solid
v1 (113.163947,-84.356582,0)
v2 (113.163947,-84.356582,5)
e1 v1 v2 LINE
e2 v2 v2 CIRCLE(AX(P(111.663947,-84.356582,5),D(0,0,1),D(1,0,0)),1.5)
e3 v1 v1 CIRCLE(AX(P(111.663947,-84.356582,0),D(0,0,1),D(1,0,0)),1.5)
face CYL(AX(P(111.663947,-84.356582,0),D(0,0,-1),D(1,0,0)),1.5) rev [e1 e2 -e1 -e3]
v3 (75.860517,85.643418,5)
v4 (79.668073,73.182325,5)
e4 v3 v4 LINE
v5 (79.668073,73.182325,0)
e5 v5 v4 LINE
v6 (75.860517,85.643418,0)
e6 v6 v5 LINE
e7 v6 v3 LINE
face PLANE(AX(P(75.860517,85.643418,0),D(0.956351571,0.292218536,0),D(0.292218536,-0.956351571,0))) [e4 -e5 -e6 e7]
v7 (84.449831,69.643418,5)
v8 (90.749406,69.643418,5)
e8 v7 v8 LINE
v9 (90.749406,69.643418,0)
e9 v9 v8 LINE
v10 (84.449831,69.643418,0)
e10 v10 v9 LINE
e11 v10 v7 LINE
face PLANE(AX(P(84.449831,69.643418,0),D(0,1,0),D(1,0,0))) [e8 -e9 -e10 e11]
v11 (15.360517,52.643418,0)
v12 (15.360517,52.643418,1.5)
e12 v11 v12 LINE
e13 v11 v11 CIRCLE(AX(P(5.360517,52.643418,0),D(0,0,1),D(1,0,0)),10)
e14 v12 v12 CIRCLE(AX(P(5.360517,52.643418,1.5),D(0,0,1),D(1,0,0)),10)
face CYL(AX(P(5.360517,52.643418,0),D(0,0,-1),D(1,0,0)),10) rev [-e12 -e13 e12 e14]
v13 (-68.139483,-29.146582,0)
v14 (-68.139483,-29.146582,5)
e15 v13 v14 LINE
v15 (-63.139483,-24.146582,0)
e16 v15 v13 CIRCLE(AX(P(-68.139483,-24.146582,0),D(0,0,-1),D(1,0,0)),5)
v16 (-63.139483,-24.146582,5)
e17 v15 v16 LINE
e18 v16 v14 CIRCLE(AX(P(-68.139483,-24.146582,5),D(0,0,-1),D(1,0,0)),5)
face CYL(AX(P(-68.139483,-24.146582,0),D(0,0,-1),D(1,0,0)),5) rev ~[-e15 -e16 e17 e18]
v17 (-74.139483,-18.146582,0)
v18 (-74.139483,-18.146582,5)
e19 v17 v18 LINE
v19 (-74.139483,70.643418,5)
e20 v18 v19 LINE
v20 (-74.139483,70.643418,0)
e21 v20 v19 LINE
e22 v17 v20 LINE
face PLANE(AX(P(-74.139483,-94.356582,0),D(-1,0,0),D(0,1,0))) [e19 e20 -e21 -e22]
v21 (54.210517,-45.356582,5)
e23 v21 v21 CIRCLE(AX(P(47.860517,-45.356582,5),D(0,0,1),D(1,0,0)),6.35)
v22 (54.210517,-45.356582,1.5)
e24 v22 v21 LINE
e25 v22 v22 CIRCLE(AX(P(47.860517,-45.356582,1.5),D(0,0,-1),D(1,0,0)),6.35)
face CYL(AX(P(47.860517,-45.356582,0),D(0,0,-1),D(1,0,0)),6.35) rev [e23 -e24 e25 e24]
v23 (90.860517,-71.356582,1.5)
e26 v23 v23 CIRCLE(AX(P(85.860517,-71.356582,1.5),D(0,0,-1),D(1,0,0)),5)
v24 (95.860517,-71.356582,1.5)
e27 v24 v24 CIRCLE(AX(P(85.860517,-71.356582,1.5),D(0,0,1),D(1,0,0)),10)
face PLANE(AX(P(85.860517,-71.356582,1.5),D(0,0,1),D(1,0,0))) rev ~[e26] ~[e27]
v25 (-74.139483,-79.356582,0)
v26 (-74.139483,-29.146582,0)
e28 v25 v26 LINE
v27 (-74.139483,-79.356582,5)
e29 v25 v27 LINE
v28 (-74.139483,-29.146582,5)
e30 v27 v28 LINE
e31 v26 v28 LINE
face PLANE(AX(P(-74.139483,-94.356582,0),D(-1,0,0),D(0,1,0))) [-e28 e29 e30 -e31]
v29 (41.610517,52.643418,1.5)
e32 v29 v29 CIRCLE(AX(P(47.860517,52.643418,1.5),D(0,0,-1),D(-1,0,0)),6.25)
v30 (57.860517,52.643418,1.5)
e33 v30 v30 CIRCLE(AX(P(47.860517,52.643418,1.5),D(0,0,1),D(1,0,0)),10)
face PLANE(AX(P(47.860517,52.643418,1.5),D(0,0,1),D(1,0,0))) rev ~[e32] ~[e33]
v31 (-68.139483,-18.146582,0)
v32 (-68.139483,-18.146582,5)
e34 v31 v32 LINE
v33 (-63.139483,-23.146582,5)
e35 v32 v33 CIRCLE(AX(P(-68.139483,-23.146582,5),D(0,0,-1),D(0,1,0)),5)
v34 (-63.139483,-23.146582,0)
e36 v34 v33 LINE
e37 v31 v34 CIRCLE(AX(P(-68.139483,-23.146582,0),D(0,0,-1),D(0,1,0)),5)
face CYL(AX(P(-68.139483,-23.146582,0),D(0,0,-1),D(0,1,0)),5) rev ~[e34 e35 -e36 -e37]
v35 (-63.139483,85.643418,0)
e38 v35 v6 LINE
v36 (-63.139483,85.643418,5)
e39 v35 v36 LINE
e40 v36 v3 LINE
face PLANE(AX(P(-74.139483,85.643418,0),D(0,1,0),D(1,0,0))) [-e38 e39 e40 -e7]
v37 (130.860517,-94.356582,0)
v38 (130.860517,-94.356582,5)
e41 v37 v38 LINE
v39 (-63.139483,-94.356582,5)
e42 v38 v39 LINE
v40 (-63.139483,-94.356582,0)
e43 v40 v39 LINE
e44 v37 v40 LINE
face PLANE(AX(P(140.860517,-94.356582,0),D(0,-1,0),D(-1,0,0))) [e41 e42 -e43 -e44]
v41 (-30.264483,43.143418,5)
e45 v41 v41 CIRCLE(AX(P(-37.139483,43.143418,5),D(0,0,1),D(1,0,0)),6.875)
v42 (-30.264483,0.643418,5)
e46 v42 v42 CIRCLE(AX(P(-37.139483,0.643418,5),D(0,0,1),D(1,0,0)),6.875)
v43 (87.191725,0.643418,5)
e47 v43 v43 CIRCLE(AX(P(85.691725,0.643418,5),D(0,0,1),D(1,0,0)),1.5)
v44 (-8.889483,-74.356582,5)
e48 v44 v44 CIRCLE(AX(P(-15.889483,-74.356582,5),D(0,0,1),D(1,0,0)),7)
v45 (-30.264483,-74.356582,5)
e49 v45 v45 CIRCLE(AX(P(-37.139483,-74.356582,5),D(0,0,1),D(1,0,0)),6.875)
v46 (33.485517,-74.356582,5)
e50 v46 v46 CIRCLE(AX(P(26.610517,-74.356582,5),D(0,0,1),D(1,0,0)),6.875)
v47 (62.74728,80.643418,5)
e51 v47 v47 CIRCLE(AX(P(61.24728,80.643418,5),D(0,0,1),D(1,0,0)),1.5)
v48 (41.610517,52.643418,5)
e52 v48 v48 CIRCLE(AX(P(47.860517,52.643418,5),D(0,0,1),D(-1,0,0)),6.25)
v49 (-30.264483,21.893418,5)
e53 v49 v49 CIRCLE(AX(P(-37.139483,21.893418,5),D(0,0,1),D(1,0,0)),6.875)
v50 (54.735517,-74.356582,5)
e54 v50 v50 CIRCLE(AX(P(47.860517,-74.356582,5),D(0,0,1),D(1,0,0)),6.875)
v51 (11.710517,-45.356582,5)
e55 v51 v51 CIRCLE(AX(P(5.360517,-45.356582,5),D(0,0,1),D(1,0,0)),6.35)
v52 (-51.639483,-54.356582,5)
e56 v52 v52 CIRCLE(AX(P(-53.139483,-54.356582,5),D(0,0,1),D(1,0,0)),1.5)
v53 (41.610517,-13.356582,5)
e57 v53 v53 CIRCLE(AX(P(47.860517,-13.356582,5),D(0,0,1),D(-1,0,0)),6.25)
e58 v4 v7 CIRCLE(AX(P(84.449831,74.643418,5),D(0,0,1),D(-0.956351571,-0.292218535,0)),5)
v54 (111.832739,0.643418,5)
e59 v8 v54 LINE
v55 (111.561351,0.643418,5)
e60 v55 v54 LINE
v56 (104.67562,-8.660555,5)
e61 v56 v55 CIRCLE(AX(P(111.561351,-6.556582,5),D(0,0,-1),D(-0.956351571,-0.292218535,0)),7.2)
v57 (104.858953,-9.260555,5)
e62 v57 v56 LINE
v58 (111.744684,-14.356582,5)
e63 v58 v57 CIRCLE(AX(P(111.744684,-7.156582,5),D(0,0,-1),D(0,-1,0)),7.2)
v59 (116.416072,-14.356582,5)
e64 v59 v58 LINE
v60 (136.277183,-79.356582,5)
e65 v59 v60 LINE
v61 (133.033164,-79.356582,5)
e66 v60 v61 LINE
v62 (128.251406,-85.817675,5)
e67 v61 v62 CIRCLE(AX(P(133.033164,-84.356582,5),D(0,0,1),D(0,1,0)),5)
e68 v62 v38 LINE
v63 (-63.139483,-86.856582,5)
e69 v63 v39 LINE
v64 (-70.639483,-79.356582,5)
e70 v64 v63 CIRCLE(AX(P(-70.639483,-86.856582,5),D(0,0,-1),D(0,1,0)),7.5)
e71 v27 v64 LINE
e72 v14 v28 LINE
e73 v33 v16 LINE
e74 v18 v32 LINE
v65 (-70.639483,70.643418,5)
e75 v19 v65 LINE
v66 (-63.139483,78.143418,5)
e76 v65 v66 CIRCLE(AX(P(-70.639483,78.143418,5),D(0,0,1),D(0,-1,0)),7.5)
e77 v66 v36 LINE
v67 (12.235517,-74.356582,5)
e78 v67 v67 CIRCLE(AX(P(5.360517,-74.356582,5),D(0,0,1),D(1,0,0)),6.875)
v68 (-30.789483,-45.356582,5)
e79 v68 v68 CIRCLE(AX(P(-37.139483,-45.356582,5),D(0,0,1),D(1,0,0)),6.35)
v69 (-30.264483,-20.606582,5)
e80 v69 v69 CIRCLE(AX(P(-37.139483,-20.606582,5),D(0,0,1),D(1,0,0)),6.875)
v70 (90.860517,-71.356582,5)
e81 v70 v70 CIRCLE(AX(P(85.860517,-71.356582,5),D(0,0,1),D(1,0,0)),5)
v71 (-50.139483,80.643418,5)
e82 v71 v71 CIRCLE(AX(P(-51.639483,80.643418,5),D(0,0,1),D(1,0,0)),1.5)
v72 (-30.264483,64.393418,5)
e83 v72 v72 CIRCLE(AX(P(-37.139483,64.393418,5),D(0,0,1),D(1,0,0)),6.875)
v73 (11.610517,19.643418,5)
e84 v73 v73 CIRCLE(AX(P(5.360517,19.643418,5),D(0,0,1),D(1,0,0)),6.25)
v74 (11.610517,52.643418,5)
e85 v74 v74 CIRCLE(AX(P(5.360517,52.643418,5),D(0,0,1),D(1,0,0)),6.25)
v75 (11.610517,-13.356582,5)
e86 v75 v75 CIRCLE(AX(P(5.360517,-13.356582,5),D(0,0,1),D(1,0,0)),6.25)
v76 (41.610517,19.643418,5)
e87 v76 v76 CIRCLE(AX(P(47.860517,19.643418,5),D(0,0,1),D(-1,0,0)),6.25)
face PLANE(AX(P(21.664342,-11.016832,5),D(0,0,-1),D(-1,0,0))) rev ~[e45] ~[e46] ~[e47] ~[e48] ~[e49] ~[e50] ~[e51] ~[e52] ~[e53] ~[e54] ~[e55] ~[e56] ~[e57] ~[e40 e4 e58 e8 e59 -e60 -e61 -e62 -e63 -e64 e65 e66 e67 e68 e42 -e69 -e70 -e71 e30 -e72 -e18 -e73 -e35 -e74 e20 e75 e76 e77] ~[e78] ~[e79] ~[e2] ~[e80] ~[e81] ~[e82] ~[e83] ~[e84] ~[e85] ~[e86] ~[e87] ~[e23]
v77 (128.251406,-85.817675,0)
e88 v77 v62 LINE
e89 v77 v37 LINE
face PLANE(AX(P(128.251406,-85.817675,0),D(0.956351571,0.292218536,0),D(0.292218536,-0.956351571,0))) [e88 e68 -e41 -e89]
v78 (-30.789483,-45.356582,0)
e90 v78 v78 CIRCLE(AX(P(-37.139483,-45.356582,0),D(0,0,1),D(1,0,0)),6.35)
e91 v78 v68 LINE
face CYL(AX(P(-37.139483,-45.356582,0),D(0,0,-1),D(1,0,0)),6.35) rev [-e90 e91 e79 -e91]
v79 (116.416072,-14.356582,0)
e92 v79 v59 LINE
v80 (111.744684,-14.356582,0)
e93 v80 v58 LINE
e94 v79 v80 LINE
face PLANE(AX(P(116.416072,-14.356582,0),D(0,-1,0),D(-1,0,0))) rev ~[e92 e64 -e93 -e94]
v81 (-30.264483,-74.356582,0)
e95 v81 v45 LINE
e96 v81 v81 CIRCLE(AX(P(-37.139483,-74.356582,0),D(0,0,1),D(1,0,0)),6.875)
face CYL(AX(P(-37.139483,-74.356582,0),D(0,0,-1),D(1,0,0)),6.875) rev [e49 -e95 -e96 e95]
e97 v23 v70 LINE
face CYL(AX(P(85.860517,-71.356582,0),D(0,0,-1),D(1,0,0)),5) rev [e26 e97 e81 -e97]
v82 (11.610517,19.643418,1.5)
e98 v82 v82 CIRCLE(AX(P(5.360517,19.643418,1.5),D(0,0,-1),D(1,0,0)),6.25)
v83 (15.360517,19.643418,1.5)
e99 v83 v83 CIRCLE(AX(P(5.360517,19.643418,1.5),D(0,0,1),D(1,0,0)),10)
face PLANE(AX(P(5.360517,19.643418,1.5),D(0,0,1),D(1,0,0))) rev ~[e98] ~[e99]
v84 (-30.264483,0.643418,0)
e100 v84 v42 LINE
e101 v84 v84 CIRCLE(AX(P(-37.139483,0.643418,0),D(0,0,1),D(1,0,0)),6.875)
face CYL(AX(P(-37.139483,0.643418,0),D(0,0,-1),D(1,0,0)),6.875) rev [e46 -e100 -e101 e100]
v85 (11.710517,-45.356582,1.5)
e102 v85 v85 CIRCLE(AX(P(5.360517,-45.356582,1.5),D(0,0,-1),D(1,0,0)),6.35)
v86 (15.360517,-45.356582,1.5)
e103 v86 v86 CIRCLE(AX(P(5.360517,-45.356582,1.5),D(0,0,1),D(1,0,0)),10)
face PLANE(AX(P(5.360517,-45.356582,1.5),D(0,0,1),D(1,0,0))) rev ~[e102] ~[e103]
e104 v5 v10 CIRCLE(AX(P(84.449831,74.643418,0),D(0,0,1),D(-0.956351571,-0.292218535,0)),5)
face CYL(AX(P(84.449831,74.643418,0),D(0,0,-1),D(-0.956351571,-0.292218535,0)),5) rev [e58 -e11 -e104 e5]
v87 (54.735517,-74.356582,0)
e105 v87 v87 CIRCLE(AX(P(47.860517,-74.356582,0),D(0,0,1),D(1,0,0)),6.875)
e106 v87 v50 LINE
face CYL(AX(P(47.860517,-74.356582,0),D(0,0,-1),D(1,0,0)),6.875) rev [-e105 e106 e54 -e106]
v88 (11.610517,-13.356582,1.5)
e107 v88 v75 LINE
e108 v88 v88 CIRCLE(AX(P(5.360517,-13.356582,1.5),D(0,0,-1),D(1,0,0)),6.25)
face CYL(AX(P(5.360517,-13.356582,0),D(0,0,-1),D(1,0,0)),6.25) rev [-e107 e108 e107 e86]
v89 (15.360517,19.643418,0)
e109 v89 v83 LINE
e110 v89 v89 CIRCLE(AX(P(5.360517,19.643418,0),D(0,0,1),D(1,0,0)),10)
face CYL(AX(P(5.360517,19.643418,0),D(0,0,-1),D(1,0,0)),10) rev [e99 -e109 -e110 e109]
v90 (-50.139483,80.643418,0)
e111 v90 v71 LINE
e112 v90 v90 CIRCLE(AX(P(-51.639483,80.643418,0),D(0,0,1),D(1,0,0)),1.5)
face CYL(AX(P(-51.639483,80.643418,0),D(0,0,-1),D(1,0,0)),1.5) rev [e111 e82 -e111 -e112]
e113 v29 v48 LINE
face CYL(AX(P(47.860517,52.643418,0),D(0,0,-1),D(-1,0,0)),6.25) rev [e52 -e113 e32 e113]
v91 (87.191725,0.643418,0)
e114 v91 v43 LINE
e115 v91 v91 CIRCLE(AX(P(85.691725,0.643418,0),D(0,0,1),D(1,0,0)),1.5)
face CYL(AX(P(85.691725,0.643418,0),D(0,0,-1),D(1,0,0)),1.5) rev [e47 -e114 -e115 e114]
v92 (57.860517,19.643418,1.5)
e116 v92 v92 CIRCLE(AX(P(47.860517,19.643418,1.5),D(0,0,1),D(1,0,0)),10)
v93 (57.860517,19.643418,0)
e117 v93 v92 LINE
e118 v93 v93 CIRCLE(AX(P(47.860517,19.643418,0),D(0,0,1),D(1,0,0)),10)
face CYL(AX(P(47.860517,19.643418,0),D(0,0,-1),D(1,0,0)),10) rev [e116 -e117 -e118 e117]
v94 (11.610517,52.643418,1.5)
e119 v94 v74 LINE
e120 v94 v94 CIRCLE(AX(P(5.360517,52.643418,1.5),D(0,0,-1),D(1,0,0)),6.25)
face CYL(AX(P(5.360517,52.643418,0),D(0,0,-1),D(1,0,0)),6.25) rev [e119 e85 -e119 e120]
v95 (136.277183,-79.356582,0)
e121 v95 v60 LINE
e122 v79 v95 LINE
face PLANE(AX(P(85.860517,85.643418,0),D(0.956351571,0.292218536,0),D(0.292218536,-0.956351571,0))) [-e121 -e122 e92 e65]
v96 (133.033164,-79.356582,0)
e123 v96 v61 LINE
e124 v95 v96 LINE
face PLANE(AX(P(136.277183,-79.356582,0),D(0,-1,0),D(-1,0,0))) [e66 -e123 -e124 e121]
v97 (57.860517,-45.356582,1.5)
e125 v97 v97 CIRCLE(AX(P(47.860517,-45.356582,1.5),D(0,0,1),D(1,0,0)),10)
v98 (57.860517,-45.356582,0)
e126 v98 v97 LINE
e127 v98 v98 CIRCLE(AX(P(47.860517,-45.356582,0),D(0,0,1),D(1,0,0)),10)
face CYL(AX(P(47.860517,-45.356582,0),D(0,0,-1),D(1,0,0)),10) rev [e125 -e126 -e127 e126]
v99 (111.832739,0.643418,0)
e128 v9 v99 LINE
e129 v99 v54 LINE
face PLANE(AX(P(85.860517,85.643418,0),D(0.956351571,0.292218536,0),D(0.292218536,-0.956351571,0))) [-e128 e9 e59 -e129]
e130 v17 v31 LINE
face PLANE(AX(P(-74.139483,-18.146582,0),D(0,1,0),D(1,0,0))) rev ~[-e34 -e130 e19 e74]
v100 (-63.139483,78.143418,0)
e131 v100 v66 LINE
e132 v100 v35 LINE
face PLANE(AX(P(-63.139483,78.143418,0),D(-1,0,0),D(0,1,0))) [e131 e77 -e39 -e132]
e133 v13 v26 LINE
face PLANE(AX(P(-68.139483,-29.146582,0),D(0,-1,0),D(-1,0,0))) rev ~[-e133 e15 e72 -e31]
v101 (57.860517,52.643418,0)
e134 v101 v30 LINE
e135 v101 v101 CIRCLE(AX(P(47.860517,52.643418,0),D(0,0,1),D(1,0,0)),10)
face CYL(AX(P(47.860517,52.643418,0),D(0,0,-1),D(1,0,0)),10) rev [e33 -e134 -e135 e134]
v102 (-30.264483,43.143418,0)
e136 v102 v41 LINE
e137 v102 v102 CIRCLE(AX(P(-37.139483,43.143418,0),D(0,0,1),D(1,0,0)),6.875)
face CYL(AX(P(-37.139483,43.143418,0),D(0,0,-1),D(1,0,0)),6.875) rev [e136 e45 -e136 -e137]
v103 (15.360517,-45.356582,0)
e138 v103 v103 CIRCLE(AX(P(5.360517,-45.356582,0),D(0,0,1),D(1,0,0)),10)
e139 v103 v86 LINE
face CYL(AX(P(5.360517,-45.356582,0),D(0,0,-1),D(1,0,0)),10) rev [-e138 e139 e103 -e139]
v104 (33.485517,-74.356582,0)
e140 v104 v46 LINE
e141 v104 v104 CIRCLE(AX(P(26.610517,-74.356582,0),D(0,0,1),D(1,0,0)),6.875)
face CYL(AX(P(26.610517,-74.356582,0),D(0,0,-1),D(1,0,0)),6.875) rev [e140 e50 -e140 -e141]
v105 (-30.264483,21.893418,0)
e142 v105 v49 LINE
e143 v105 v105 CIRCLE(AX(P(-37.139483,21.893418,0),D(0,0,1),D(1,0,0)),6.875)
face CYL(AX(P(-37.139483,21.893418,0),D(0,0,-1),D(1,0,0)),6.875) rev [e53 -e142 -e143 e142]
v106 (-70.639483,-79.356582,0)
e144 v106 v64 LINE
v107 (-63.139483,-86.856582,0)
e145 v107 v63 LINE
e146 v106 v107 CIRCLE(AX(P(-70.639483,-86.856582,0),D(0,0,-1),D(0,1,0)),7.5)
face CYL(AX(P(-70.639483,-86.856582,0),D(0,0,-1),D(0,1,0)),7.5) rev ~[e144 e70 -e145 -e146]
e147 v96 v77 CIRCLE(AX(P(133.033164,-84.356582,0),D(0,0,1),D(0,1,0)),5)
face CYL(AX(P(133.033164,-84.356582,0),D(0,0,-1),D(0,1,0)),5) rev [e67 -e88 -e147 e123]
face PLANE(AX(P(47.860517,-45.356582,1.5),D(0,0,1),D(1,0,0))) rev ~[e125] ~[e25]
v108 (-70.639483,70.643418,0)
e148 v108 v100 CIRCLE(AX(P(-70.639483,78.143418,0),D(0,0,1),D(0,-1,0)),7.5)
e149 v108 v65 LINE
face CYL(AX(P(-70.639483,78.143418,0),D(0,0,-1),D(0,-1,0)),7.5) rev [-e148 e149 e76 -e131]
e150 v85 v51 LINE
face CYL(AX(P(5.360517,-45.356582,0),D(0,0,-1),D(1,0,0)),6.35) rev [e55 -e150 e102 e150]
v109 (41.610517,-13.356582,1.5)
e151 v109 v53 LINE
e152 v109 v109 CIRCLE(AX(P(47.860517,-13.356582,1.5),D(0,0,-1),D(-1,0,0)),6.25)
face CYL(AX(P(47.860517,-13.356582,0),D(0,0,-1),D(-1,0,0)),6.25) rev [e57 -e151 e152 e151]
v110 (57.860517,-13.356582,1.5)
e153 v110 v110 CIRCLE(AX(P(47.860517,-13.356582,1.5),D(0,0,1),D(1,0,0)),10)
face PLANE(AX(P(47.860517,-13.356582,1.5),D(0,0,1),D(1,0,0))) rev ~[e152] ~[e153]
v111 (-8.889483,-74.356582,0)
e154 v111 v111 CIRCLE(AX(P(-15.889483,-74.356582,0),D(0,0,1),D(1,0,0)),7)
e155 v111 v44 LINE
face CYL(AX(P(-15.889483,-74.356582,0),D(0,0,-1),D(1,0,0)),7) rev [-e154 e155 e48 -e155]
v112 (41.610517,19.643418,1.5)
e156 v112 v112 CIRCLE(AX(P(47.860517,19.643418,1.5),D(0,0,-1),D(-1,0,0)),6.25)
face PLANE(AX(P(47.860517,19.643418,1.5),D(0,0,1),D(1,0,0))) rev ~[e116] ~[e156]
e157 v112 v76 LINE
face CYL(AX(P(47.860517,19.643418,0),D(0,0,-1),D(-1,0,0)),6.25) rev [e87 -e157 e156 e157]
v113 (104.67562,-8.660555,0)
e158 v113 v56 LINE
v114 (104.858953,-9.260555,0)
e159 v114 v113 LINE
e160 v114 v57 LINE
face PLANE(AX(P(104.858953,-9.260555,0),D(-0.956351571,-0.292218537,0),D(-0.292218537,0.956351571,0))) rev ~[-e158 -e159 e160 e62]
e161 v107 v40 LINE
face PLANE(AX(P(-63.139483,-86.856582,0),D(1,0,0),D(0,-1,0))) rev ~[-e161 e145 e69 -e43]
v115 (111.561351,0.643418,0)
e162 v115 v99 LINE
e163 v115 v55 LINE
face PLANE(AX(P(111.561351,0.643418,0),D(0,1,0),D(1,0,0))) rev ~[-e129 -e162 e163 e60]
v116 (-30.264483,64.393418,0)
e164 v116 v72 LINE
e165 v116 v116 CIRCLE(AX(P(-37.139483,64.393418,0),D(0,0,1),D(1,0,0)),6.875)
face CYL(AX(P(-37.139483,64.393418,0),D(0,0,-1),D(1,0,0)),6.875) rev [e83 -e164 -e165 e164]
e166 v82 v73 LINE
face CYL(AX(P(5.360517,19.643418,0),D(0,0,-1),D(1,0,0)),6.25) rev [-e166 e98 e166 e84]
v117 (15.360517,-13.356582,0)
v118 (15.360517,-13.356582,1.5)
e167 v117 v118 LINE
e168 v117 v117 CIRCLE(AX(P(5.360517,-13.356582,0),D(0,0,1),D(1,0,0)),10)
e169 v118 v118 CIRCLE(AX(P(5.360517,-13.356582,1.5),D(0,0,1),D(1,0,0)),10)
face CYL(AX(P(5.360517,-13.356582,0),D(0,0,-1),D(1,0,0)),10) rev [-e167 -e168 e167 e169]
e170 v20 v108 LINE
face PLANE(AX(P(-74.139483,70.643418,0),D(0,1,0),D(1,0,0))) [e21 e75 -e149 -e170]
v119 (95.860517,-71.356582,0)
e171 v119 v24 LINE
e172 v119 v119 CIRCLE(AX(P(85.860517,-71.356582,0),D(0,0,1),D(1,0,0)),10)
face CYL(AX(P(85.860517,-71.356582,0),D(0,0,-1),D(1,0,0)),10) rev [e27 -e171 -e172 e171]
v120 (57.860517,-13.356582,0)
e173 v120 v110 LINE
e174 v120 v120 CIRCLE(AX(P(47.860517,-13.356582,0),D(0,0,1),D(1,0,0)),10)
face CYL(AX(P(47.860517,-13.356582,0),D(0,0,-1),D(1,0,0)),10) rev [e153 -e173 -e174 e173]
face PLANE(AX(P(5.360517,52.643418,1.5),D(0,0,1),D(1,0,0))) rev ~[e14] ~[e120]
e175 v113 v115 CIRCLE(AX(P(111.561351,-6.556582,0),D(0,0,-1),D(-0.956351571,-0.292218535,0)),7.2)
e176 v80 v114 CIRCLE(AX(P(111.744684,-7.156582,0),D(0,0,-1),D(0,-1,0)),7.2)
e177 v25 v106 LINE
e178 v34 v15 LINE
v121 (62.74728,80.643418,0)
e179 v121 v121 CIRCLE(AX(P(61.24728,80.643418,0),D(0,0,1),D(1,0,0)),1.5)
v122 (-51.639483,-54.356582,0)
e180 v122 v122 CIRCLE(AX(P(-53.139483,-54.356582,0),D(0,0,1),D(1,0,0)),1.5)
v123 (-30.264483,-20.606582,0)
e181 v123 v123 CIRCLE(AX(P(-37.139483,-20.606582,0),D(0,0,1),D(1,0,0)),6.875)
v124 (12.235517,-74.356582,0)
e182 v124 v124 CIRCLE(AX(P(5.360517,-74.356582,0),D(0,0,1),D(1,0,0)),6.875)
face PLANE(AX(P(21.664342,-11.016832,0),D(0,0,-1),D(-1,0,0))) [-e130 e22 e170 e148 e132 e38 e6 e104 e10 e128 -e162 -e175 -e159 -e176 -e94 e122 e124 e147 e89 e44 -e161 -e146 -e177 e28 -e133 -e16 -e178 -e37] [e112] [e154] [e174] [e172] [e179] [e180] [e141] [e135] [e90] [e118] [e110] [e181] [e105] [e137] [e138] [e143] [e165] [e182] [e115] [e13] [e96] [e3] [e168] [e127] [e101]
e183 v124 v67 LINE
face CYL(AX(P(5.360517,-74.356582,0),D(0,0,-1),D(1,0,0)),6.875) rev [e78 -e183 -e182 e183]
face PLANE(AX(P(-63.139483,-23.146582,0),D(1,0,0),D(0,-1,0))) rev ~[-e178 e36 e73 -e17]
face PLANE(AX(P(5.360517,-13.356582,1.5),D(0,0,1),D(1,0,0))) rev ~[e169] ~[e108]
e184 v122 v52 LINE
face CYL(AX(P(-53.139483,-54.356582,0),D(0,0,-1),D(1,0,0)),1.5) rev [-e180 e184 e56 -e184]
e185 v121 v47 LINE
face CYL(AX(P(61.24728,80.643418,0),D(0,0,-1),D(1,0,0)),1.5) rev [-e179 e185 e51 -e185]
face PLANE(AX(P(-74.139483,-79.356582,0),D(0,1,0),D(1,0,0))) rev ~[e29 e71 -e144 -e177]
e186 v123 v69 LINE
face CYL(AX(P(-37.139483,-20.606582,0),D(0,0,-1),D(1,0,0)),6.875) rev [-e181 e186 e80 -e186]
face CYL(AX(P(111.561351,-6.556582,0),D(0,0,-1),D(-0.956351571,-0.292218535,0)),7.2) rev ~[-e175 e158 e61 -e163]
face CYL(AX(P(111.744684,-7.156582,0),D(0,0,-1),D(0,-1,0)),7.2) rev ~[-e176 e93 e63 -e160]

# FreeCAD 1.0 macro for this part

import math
import FreeCAD as App
import Part
import Sketcher

V = App.Vector

doc = App.newDocument("Part")
body = doc.addObject("PartDesign::Body", "Body")

# Sketch on XY plane
sketch1 = body.newObject("Sketcher::SketchObject", "Sketch")
sketch1.AttachmentSupport = (doc.getObject("XY_Plane"), [""])
sketch1.MapMode = "FlatFace"
sketch1.addGeometry(Part.LineSegment(V(85.9, 85.6, 0), V(-74.1, 85.6, 0)), False)
sketch1.addGeometry(Part.LineSegment(V(-74.1, 85.6, 0), V(-74.1, -94.4, 0)), False)
sketch1.addGeometry(Part.LineSegment(V(-74.1, -94.4, 0), V(140.9, -94.4, 0)), False)
sketch1.addGeometry(Part.LineSegment(V(140.9, -94.4, 0), V(85.9, 85.6, 0)), False)
sketch1.addGeometry(Part.Circle(V(111.7, -84.4, 0), V(0, 0, 1), 1.5), False)
sketch1.addGeometry(Part.Circle(V(85.9, -71.4, 0), V(0, 0, 1), 5), False)
sketch1.addGeometry(Part.Circle(V(47.9, -74.4, 0), V(0, 0, 1), 6.9), False)
sketch1.addGeometry(Part.Circle(V(47.9, -45.4, 0), V(0, 0, 1), 6.3), False)
sketch1.addGeometry(Part.Circle(V(47.9, -13.4, 0), V(0, 0, 1), 6.2), False)
sketch1.addGeometry(Part.Circle(V(26.6, -74.4, 0), V(0, 0, 1), 6.9), False)
sketch1.addGeometry(Part.Circle(V(5.4, -74.4, 0), V(0, 0, 1), 6.9), False)
sketch1.addGeometry(Part.Circle(V(5.4, -45.4, 0), V(0, 0, 1), 6.3), False)
sketch1.addGeometry(Part.Circle(V(-15.9, -74.4, 0), V(0, 0, 1), 7), False)
sketch1.addGeometry(Part.Circle(V(-37.1, -74.4, 0), V(0, 0, 1), 6.9), False)
sketch1.addGeometry(Part.Circle(V(-37.1, -45.4, 0), V(0, 0, 1), 6.3), False)
sketch1.addGeometry(Part.Circle(V(-53.1, -54.4, 0), V(0, 0, 1), 1.5), False)
sketch1.addGeometry(Part.Circle(V(5.4, -13.4, 0), V(0, 0, 1), 6.2), False)
sketch1.addGeometry(Part.Circle(V(-37.1, -20.6, 0), V(0, 0, 1), 6.9), False)
sketch1.addGeometry(Part.Circle(V(85.7, 0.6, 0), V(0, 0, 1), 1.5), False)
sketch1.addGeometry(Part.Circle(V(47.9, 19.6, 0), V(0, 0, 1), 6.2), False)
sketch1.addGeometry(Part.Circle(V(47.9, 52.6, 0), V(0, 0, 1), 6.2), False)
sketch1.addGeometry(Part.Circle(V(61.2, 80.6, 0), V(0, 0, 1), 1.5), False)
sketch1.addGeometry(Part.Circle(V(5.4, 19.6, 0), V(0, 0, 1), 6.2), False)
sketch1.addGeometry(Part.Circle(V(-37.1, 0.6, 0), V(0, 0, 1), 6.9), False)
sketch1.addGeometry(Part.Circle(V(-37.1, 21.9, 0), V(0, 0, 1), 6.9), False)
sketch1.addGeometry(Part.Circle(V(5.4, 52.6, 0), V(0, 0, 1), 6.2), False)
sketch1.addGeometry(Part.Circle(V(-37.1, 43.1, 0), V(0, 0, 1), 6.9), False)
sketch1.addGeometry(Part.Circle(V(-37.1, 64.4, 0), V(0, 0, 1), 6.9), False)
sketch1.addGeometry(Part.Circle(V(-51.6, 80.6, 0), V(0, 0, 1), 1.5), False)
sketch1.addConstraint(Sketcher.Constraint("Coincident", 0, 2, 1, 1))
sketch1.addConstraint(Sketcher.Constraint("Coincident", 1, 2, 2, 1))
sketch1.addConstraint(Sketcher.Constraint("Coincident", 2, 2, 3, 1))
sketch1.addConstraint(Sketcher.Constraint("Coincident", 3, 2, 0, 1))
sketch1.addConstraint(Sketcher.Constraint("Horizontal", 0))
sketch1.addConstraint(Sketcher.Constraint("Vertical", 1))
sketch1.addConstraint(Sketcher.Constraint("Horizontal", 2))
sketch1.addConstraint(Sketcher.Constraint("Equal", 6, 9))
sketch1.addConstraint(Sketcher.Constraint("Equal", 9, 10))
sketch1.addConstraint(Sketcher.Constraint("Equal", 7, 11))
sketch1.addConstraint(Sketcher.Constraint("Equal", 10, 13))
sketch1.addConstraint(Sketcher.Constraint("Equal", 11, 14))
sketch1.addConstraint(Sketcher.Constraint("Equal", 4, 15))
sketch1.addConstraint(Sketcher.Constraint("Equal", 8, 16))
sketch1.addConstraint(Sketcher.Constraint("Equal", 13, 17))
sketch1.addConstraint(Sketcher.Constraint("Equal", 15, 18))
sketch1.addConstraint(Sketcher.Constraint("Equal", 16, 19))
sketch1.addConstraint(Sketcher.Constraint("Equal", 19, 20))
sketch1.addConstraint(Sketcher.Constraint("Equal", 18, 21))
sketch1.addConstraint(Sketcher.Constraint("Equal", 20, 22))
sketch1.addConstraint(Sketcher.Constraint("Equal", 17, 23))
sketch1.addConstraint(Sketcher.Constraint("Equal", 23, 24))
sketch1.addConstraint(Sketcher.Constraint("Equal", 22, 25))
sketch1.addConstraint(Sketcher.Constraint("Equal", 24, 26))
sketch1.addConstraint(Sketcher.Constraint("Equal", 26, 27))
sketch1.addConstraint(Sketcher.Constraint("Equal", 21, 28))
sketch1.addConstraint(Sketcher.Constraint("Horizontal", 6, 3, 9, 3))
sketch1.addConstraint(Sketcher.Constraint("Horizontal", 9, 3, 10, 3))
sketch1.addConstraint(Sketcher.Constraint("Horizontal", 7, 3, 11, 3))
sketch1.addConstraint(Sketcher.Constraint("Horizontal", 10, 3, 12, 3))
sketch1.addConstraint(Sketcher.Constraint("Horizontal", 12, 3, 13, 3))
sketch1.addConstraint(Sketcher.Constraint("Horizontal", 11, 3, 14, 3))
sketch1.addConstraint(Sketcher.Constraint("Horizontal", 8, 3, 16, 3))
sketch1.addConstraint(Sketcher.Constraint("Horizontal", 19, 3, 22, 3))
sketch1.addConstraint(Sketcher.Constraint("Horizontal", 18, 3, 23, 3))
sketch1.addConstraint(Sketcher.Constraint("Horizontal", 20, 3, 25, 3))
sketch1.addConstraint(Sketcher.Constraint("Horizontal", 21, 3, 28, 3))
sketch1.addConstraint(Sketcher.Constraint("Vertical", 6, 3, 7, 3))
sketch1.addConstraint(Sketcher.Constraint("Vertical", 7, 3, 8, 3))
sketch1.addConstraint(Sketcher.Constraint("Vertical", 10, 3, 11, 3))
sketch1.addConstraint(Sketcher.Constraint("Vertical", 13, 3, 14, 3))
sketch1.addConstraint(Sketcher.Constraint("Vertical", 11, 3, 16, 3))
sketch1.addConstraint(Sketcher.Constraint("Vertical", 14, 3, 17, 3))
sketch1.addConstraint(Sketcher.Constraint("Vertical", 8, 3, 19, 3))
sketch1.addConstraint(Sketcher.Constraint("Vertical", 19, 3, 20, 3))
sketch1.addConstraint(Sketcher.Constraint("Vertical", 16, 3, 22, 3))
sketch1.addConstraint(Sketcher.Constraint("Vertical", 17, 3, 23, 3))
sketch1.addConstraint(Sketcher.Constraint("Vertical", 23, 3, 24, 3))
sketch1.addConstraint(Sketcher.Constraint("Vertical", 22, 3, 25, 3))
sketch1.addConstraint(Sketcher.Constraint("Vertical", 24, 3, 26, 3))
sketch1.addConstraint(Sketcher.Constraint("Vertical", 26, 3, 27, 3))
sketch1.addConstraint(Sketcher.Constraint("Vertical", 5, 3, 3, 2))
sketch1.addConstraint(Sketcher.Constraint("Diameter", 4, 3.0))
sketch1.addConstraint(Sketcher.Constraint("Diameter", 5, 10.0))
sketch1.addConstraint(Sketcher.Constraint("Diameter", 12, 14.0))
sketch1.addConstraint(Sketcher.Constraint("Diameter", 7, 12.7))
sketch1.addConstraint(Sketcher.Constraint("Diameter", 8, 12.5))
sketch1.addConstraint(Sketcher.Constraint("Diameter", 6, 13.75))
sketch1.addConstraint(Sketcher.Constraint("DistanceX", 0, 2, 0, 1, 160.0))
sketch1.addConstraint(Sketcher.Constraint("DistanceX", 2, 1, 2, 2, 215.0))
sketch1.addConstraint(Sketcher.Constraint("DistanceY", 1, 2, 1, 1, 180.0))
sketch1.addConstraint(Sketcher.Constraint("DistanceY", 4, 3, 5, 3, 13.0))
sketch1.addConstraint(Sketcher.Constraint("DistanceX", 6, 3, 5, 3, 38.0))
sketch1.addConstraint(Sketcher.Constraint("DistanceY", 6, 3, 5, 3, 3.0))
sketch1.addConstraint(Sketcher.Constraint("DistanceY", 6, 3, 7, 3, 29.0))
sketch1.addConstraint(Sketcher.Constraint("DistanceY", 7, 3, 8, 3, 32.0))
sketch1.addConstraint(Sketcher.Constraint("DistanceX", 13, 3, 6, 3, 85.0))
sketch1.addConstraint(Sketcher.Constraint("DistanceX", 15, 3, 14, 3, 16.0))
sketch1.addConstraint(Sketcher.Constraint("DistanceY", 15, 3, 14, 3, 9.0))
sketch1.addConstraint(Sketcher.Constraint("DistanceY", 8, 3, 18, 3, 14.0))
sketch1.addConstraint(Sketcher.Constraint("DistanceY", 8, 3, 19, 3, 33.0))
sketch1.addConstraint(Sketcher.Constraint("DistanceY", 19, 3, 20, 3, 33.0))
sketch1.addConstraint(Sketcher.Constraint("DistanceY", 20, 3, 21, 3, 28.0))
sketch1.addConstraint(Sketcher.Constraint("DistanceX", 28, 3, 25, 3, 57.0))
sketch1.addConstraint(Sketcher.Constraint("DistanceY", 28, 3, 0, 2, 5.0))
sketch1.addConstraint(Sketcher.Constraint("DistanceX", 10, 3, 6, 3, 42.5))
sketch1.addConstraint(Sketcher.Constraint("DistanceX", 12, 3, 9, 3, 42.5))
sketch1.addConstraint(Sketcher.Constraint("DistanceY", 17, 3, 24, 3, 42.5))
sketch1.addConstraint(Sketcher.Constraint("DistanceY", 23, 3, 26, 3, 42.5))
sketch1.addConstraint(Sketcher.Constraint("DistanceY", 24, 3, 27, 3, 42.5))
sketch1.addConstraint(Sketcher.Constraint("DistanceX", 9, 3, 6, 3, 21.25))
sketch1.addConstraint(Sketcher.Constraint("DistanceY", 14, 3, 17, 3, 24.75))
sketch1.addConstraint(Sketcher.Constraint("DistanceY", 4, 3, -1, 1, 84.356582))
sketch1.addConstraint(Sketcher.Constraint("DistanceX", -1, 1, 21, 3, 61.24728))
sketch1.addConstraint(Sketcher.Constraint("DistanceX", 5, 3, 4, 3, 25.80343))
sketch1.addConstraint(Sketcher.Constraint("DistanceX", 8, 3, 18, 3, 37.831208))
sketch1.addConstraint(Sketcher.Constraint("DistanceX", -1, 1, 4, 3, 111.663947))
pad1 = body.newObject("PartDesign::Pad", "Pad")
pad1.Profile = sketch1
pad1.Length = 5

# Sketch on XY plane
sketch2 = body.newObject("Sketcher::SketchObject", "Sketch001")
sketch2.AttachmentSupport = (doc.getObject("XY_Plane"), [""])
sketch2.MapMode = "FlatFace"
sketch2.addGeometry(Part.Circle(V(5, 53, 0), V(0, 0, 1), 10), False)
sketch2.addGeometry(Part.Circle(V(48, 53, 0), V(0, 0, 1), 10), False)
sketch2.addGeometry(Part.Circle(V(48, -45, 0), V(0, 0, 1), 10), False)
sketch2.addGeometry(Part.Circle(V(48, -13, 0), V(0, 0, 1), 10), False)
sketch2.addGeometry(Part.Circle(V(48, 20, 0), V(0, 0, 1), 10), False)
sketch2.addGeometry(Part.Circle(V(5, 20, 0), V(0, 0, 1), 10), False)
sketch2.addGeometry(Part.Circle(V(5, -13, 0), V(0, 0, 1), 10), False)
sketch2.addGeometry(Part.Circle(V(5, -45, 0), V(0, 0, 1), 10), False)
sketch2.addGeometry(Part.Circle(V(86, -71, 0), V(0, 0, 1), 10), False)
sketch2.addConstraint(Sketcher.Constraint("Equal", 0, 1))
sketch2.addConstraint(Sketcher.Constraint("Equal", 1, 2))
sketch2.addConstraint(Sketcher.Constraint("Equal", 2, 3))
sketch2.addConstraint(Sketcher.Constraint("Equal", 3, 4))
sketch2.addConstraint(Sketcher.Constraint("Equal", 4, 5))
sketch2.addConstraint(Sketcher.Constraint("Equal", 5, 6))
sketch2.addConstraint(Sketcher.Constraint("Equal", 6, 7))
sketch2.addConstraint(Sketcher.Constraint("Equal", 7, 8))
sketch2.addConstraint(Sketcher.Constraint("Horizontal", 0, 3, 1, 3))
sketch2.addConstraint(Sketcher.Constraint("Horizontal", 4, 3, 5, 3))
sketch2.addConstraint(Sketcher.Constraint("Horizontal", 3, 3, 6, 3))
sketch2.addConstraint(Sketcher.Constraint("Horizontal", 2, 3, 7, 3))
sketch2.addConstraint(Sketcher.Constraint("Vertical", 1, 3, 2, 3))
sketch2.addConstraint(Sketcher.Constraint("Vertical", 2, 3, 3, 3))
sketch2.addConstraint(Sketcher.Constraint("Vertical", 3, 3, 4, 3))
sketch2.addConstraint(Sketcher.Constraint("Vertical", 0, 3, 5, 3))
sketch2.addConstraint(Sketcher.Constraint("Vertical", 5, 3, 6, 3))
sketch2.addConstraint(Sketcher.Constraint("Vertical", 6, 3, 7, 3))
sketch2.addConstraint(Sketcher.Constraint("Diameter", 0, 20.0))
sketch2.addConstraint(Sketcher.Constraint("DistanceY", 2, 3, 1, 3, 98.0))
sketch2.addConstraint(Sketcher.Constraint("DistanceY", 2, 3, 3, 3, 32.0))
sketch2.addConstraint(Sketcher.Constraint("DistanceY", 4, 3, 1, 3, 33.0))
sketch2.addConstraint(Sketcher.Constraint("DistanceX", 2, 3, 8, 3, 38.0))
sketch2.addConstraint(Sketcher.Constraint("DistanceY", 8, 3, 2, 3, 26.0))
sketch2.addConstraint(Sketcher.Constraint("DistanceX", 0, 3, 1, 3, 42.5))
sketch2.addConstraint(Sketcher.Constraint("DistanceY", -1, 1, 0, 3, 52.643418))
sketch2.addConstraint(Sketcher.Constraint("DistanceX", -1, 1, 0, 3, 5.360517))
pocket1 = body.newObject("PartDesign::Pocket", "Pocket")
pocket1.Profile = sketch2
pocket1.Length = 1.5
pocket1.Reversed = True

# Sketch on XY plane
sketch3 = body.newObject("Sketcher::SketchObject", "Sketch002")
sketch3.AttachmentSupport = (doc.getObject("XY_Plane"), [""])
sketch3.MapMode = "FlatFace"
sketch3.addGeometry(Part.LineSegment(V(-74.14, 70.64, 0), V(-70.64, 70.64, 0)), False)
sketch3.addGeometry(Part.ArcOfCircle(Part.Circle(V(-70.64, 78.14, 0), V(0, 0, 1), 7.5), math.radians(-90), math.radians(0)), False)
sketch3.addGeometry(Part.LineSegment(V(-63.14, 78.14, 0), V(-63.14, 85.64, 0)), False)
sketch3.addGeometry(Part.LineSegment(V(-63.14, 85.64, 0), V(-74.14, 85.64, 0)), False)
sketch3.addGeometry(Part.LineSegment(V(-74.14, 85.64, 0), V(-74.14, 70.64, 0)), False)
sketch3.addGeometry(Part.LineSegment(V(136.28, -79.36, 0), V(133.03, -79.36, 0)), False)
sketch3.addGeometry(Part.ArcOfCircle(Part.Circle(V(133.03, -84.36, 0), V(0, 0, 1), 5), math.radians(90), math.radians(197)), False)
sketch3.addGeometry(Part.LineSegment(V(128.25, -85.82, 0), V(130.86, -94.36, 0)), False)
sketch3.addGeometry(Part.LineSegment(V(130.86, -94.36, 0), V(140.86, -94.36, 0)), False)
sketch3.addGeometry(Part.LineSegment(V(140.86, -94.36, 0), V(136.28, -79.36, 0)), False)
sketch3.addGeometry(Part.LineSegment(V(75.86, 85.64, 0), V(79.67, 73.18, 0)), False)
sketch3.addGeometry(Part.ArcOfCircle(Part.Circle(V(84.45, 74.64, 0), V(0, 0, 1), 5), math.radians(-163), math.radians(-90)), False)
sketch3.addGeometry(Part.LineSegment(V(84.45, 69.64, 0), V(90.75, 69.64, 0)), False)
sketch3.addGeometry(Part.LineSegment(V(90.75, 69.64, 0), V(85.86, 85.64, 0)), False)
sketch3.addGeometry(Part.LineSegment(V(85.86, 85.64, 0), V(75.86, 85.64, 0)), False)
sketch3.addGeometry(Part.LineSegment(V(-70.64, -79.36, 0), V(-74.14, -79.36, 0)), False)
sketch3.addGeometry(Part.LineSegment(V(-74.14, -79.36, 0), V(-74.14, -94.36, 0)), False)
sketch3.addGeometry(Part.LineSegment(V(-74.14, -94.36, 0), V(-63.14, -94.36, 0)), False)
sketch3.addGeometry(Part.LineSegment(V(-63.14, -94.36, 0), V(-63.14, -86.86, 0)), False)
sketch3.addGeometry(Part.ArcOfCircle(Part.Circle(V(-70.64, -86.86, 0), V(0, 0, 1), 7.5), math.radians(0), math.radians(90)), False)
sketch3.addGeometry(Part.LineSegment(V(-68.14, -18.15, 0), V(-74.14, -18.15, 0)), False)
sketch3.addGeometry(Part.LineSegment(V(-74.14, -18.15, 0), V(-74.14, -29.15, 0)), False)
sketch3.addGeometry(Part.LineSegment(V(-74.14, -29.15, 0), V(-68.14, -29.15, 0)), False)
sketch3.addGeometry(Part.ArcOfCircle(Part.Circle(V(-68.14, -24.15, 0), V(0, 0, 1), 5), math.radians(-90), math.radians(0)), False)
sketch3.addGeometry(Part.LineSegment(V(-63.14, -24.15, 0), V(-63.14, -23.15, 0)), False)
sketch3.addGeometry(Part.ArcOfCircle(Part.Circle(V(-68.14, -23.15, 0), V(0, 0, 1), 5), math.radians(0), math.radians(90)), False)
sketch3.addGeometry(Part.LineSegment(V(116.42, -14.36, 0), V(111.83, 0.64, 0)), False)
sketch3.addGeometry(Part.LineSegment(V(111.83, 0.64, 0), V(111.56, 0.64, 0)), False)
sketch3.addGeometry(Part.ArcOfCircle(Part.Circle(V(111.56, -6.56, 0), V(0, 0, 1), 7.2), math.radians(90), math.radians(197)), False)
sketch3.addGeometry(Part.LineSegment(V(104.68, -8.66, 0), V(104.86, -9.26, 0)), False)
sketch3.addGeometry(Part.ArcOfCircle(Part.Circle(V(111.74, -7.16, 0), V(0, 0, 1), 7.2), math.radians(-163), math.radians(-90)), False)
sketch3.addGeometry(Part.LineSegment(V(111.74, -14.36, 0), V(116.42, -14.36, 0)), False)
sketch3.addConstraint(Sketcher.Constraint("Tangent", 0, 2, 1, 1))
sketch3.addConstraint(Sketcher.Constraint("Tangent", 1, 2, 2, 1))
sketch3.addConstraint(Sketcher.Constraint("Coincident", 2, 2, 3, 1))
sketch3.addConstraint(Sketcher.Constraint("Coincident", 3, 2, 4, 1))
sketch3.addConstraint(Sketcher.Constraint("Coincident", 4, 2, 0, 1))
sketch3.addConstraint(Sketcher.Constraint("Tangent", 5, 2, 6, 1))
sketch3.addConstraint(Sketcher.Constraint("Tangent", 6, 2, 7, 1))
sketch3.addConstraint(Sketcher.Constraint("Coincident", 7, 2, 8, 1))
sketch3.addConstraint(Sketcher.Constraint("Coincident", 8, 2, 9, 1))
sketch3.addConstraint(Sketcher.Constraint("Coincident", 9, 2, 5, 1))
sketch3.addConstraint(Sketcher.Constraint("Tangent", 10, 2, 11, 1))
sketch3.addConstraint(Sketcher.Constraint("Tangent", 11, 2, 12, 1))
sketch3.addConstraint(Sketcher.Constraint("Coincident", 12, 2, 13, 1))
sketch3.addConstraint(Sketcher.Constraint("Coincident", 13, 2, 14, 1))
sketch3.addConstraint(Sketcher.Constraint("Coincident", 14, 2, 10, 1))
sketch3.addConstraint(Sketcher.Constraint("Coincident", 15, 2, 16, 1))
sketch3.addConstraint(Sketcher.Constraint("Coincident", 16, 2, 17, 1))
sketch3.addConstraint(Sketcher.Constraint("Coincident", 17, 2, 18, 1))
sketch3.addConstraint(Sketcher.Constraint("Tangent", 18, 2, 19, 1))
sketch3.addConstraint(Sketcher.Constraint("Tangent", 19, 2, 15, 1))
sketch3.addConstraint(Sketcher.Constraint("Coincident", 20, 2, 21, 1))
sketch3.addConstraint(Sketcher.Constraint("Coincident", 21, 2, 22, 1))
sketch3.addConstraint(Sketcher.Constraint("Tangent", 22, 2, 23, 1))
sketch3.addConstraint(Sketcher.Constraint("Tangent", 23, 2, 24, 1))
sketch3.addConstraint(Sketcher.Constraint("Tangent", 24, 2, 25, 1))
sketch3.addConstraint(Sketcher.Constraint("Tangent", 25, 2, 20, 1))
sketch3.addConstraint(Sketcher.Constraint("Coincident", 26, 2, 27, 1))
sketch3.addConstraint(Sketcher.Constraint("Tangent", 27, 2, 28, 1))
sketch3.addConstraint(Sketcher.Constraint("Tangent", 28, 2, 29, 1))
sketch3.addConstraint(Sketcher.Constraint("Tangent", 29, 2, 30, 1))
sketch3.addConstraint(Sketcher.Constraint("Tangent", 30, 2, 31, 1))
sketch3.addConstraint(Sketcher.Constraint("Coincident", 31, 2, 26, 1))
sketch3.addConstraint(Sketcher.Constraint("Horizontal", 0))
sketch3.addConstraint(Sketcher.Constraint("Vertical", 2))
sketch3.addConstraint(Sketcher.Constraint("Horizontal", 3))
sketch3.addConstraint(Sketcher.Constraint("Vertical", 4))
sketch3.addConstraint(Sketcher.Constraint("Horizontal", 5))
sketch3.addConstraint(Sketcher.Constraint("Horizontal", 8))
sketch3.addConstraint(Sketcher.Constraint("Horizontal", 12))
sketch3.addConstraint(Sketcher.Constraint("Horizontal", 14))
sketch3.addConstraint(Sketcher.Constraint("Horizontal", 15))
sketch3.addConstraint(Sketcher.Constraint("Vertical", 16))
sketch3.addConstraint(Sketcher.Constraint("Horizontal", 17))
sketch3.addConstraint(Sketcher.Constraint("Vertical", 18))
sketch3.addConstraint(Sketcher.Constraint("Horizontal", 20))
sketch3.addConstraint(Sketcher.Constraint("Vertical", 21))
sketch3.addConstraint(Sketcher.Constraint("Horizontal", 22))
sketch3.addConstraint(Sketcher.Constraint("Vertical", 24))
sketch3.addConstraint(Sketcher.Constraint("Horizontal", 27))
sketch3.addConstraint(Sketcher.Constraint("Horizontal", 31))
sketch3.addConstraint(Sketcher.Constraint("Equal", 6, 11))
sketch3.addConstraint(Sketcher.Constraint("Equal", 1, 19))
sketch3.addConstraint(Sketcher.Constraint("Equal", 11, 23))
sketch3.addConstraint(Sketcher.Constraint("Equal", 23, 25))
sketch3.addConstraint(Sketcher.Constraint("Equal", 28, 30))
sketch3.addConstraint(Sketcher.Constraint("Parallel", 7, 9))
sketch3.addConstraint(Sketcher.Constraint("Parallel", 9, 10))
sketch3.addConstraint(Sketcher.Constraint("Parallel", 10, 13))
sketch3.addConstraint(Sketcher.Constraint("Parallel", 13, 26))
sketch3.addConstraint(Sketcher.Constraint("Parallel", 26, 29))
sketch3.addConstraint(Sketcher.Constraint("Horizontal", 3, 2, 13, 2))
sketch3.addConstraint(Sketcher.Constraint("Horizontal", 9, 2, 15, 2))
sketch3.addConstraint(Sketcher.Constraint("Horizontal", 8, 2, 16, 2))
sketch3.addConstraint(Sketcher.Constraint("Vertical", 1, 3, 19, 3))
sketch3.addConstraint(Sketcher.Constraint("Vertical", 4, 2, 15, 2))
sketch3.addConstraint(Sketcher.Constraint("Vertical", 16, 2, 20, 2))
sketch3.addConstraint(Sketcher.Constraint("Vertical", 18, 2, 23, 2))
sketch3.addConstraint(Sketcher.Constraint("Equal", 8, 14))
sketch3.addConstraint(Sketcher.Constraint("Equal", 4, 16))
sketch3.addConstraint(Sketcher.Constraint("Equal", 17, 21))
sketch3.addConstraint(Sketcher.Constraint("Equal", 9, 26))
sketch3.addConstraint(Sketcher.Constraint("Radius", 6, 5.0))
sketch3.addConstraint(Sketcher.Constraint("Radius", 1, 7.5))
sketch3.addConstraint(Sketcher.Constraint("Radius", 28, 7.2))
sketch3.addConstraint(Sketcher.Constraint("DistanceX", 3, 2, 3, 1, 11.0))
sketch3.addConstraint(Sketcher.Constraint("DistanceX", 8, 1, 8, 2, 10.0))
sketch3.addConstraint(Sketcher.Constraint("DistanceY", 4, 2, 4, 1, 15.0))
sketch3.addConstraint(Sketcher.Constraint("DistanceY", 6, 3, 11, 3, 159.0))
sketch3.addConstraint(Sketcher.Constraint("DistanceY", 19, 3, 1, 3, 165.0))
sketch3.addConstraint(Sketcher.Constraint("DistanceY", 26, 2, 12, 2, 69.0))
sketch3.addConstraint(Sketcher.Constraint("DistanceY", 19, 3, 23, 3, 62.71))
sketch3.addConstraint(Sketcher.Constraint("DistanceX", 5, 2, 5, 1, 3.244019))
sketch3.addConstraint(Sketcher.Constraint("DistanceX", 27, 2, 27, 1, 0.271388))
sketch3.addConstraint(Sketcher.Constraint("DistanceY", -1, 1, 1, 3, 78.143418))
sketch3.addConstraint(Sketcher.Constraint("DistanceX", -1, 1, 11, 3, 84.449831))
sketch3.addConstraint(Sketcher.Constraint("DistanceX", -1, 1, 28, 3, 111.561351))
sketch3.addConstraint(Sketcher.Constraint("DistanceX", 30, 3, 6, 3, 21.28848))
sketch3.addConstraint(Sketcher.Constraint("DistanceX", 1, 3, -1, 1, 70.639483))
pocket2 = body.newObject("PartDesign::Pocket", "Pocket001")
pocket2.Profile = sketch3
pocket2.Length = 5
pocket2.Reversed = True

doc.recompute()
